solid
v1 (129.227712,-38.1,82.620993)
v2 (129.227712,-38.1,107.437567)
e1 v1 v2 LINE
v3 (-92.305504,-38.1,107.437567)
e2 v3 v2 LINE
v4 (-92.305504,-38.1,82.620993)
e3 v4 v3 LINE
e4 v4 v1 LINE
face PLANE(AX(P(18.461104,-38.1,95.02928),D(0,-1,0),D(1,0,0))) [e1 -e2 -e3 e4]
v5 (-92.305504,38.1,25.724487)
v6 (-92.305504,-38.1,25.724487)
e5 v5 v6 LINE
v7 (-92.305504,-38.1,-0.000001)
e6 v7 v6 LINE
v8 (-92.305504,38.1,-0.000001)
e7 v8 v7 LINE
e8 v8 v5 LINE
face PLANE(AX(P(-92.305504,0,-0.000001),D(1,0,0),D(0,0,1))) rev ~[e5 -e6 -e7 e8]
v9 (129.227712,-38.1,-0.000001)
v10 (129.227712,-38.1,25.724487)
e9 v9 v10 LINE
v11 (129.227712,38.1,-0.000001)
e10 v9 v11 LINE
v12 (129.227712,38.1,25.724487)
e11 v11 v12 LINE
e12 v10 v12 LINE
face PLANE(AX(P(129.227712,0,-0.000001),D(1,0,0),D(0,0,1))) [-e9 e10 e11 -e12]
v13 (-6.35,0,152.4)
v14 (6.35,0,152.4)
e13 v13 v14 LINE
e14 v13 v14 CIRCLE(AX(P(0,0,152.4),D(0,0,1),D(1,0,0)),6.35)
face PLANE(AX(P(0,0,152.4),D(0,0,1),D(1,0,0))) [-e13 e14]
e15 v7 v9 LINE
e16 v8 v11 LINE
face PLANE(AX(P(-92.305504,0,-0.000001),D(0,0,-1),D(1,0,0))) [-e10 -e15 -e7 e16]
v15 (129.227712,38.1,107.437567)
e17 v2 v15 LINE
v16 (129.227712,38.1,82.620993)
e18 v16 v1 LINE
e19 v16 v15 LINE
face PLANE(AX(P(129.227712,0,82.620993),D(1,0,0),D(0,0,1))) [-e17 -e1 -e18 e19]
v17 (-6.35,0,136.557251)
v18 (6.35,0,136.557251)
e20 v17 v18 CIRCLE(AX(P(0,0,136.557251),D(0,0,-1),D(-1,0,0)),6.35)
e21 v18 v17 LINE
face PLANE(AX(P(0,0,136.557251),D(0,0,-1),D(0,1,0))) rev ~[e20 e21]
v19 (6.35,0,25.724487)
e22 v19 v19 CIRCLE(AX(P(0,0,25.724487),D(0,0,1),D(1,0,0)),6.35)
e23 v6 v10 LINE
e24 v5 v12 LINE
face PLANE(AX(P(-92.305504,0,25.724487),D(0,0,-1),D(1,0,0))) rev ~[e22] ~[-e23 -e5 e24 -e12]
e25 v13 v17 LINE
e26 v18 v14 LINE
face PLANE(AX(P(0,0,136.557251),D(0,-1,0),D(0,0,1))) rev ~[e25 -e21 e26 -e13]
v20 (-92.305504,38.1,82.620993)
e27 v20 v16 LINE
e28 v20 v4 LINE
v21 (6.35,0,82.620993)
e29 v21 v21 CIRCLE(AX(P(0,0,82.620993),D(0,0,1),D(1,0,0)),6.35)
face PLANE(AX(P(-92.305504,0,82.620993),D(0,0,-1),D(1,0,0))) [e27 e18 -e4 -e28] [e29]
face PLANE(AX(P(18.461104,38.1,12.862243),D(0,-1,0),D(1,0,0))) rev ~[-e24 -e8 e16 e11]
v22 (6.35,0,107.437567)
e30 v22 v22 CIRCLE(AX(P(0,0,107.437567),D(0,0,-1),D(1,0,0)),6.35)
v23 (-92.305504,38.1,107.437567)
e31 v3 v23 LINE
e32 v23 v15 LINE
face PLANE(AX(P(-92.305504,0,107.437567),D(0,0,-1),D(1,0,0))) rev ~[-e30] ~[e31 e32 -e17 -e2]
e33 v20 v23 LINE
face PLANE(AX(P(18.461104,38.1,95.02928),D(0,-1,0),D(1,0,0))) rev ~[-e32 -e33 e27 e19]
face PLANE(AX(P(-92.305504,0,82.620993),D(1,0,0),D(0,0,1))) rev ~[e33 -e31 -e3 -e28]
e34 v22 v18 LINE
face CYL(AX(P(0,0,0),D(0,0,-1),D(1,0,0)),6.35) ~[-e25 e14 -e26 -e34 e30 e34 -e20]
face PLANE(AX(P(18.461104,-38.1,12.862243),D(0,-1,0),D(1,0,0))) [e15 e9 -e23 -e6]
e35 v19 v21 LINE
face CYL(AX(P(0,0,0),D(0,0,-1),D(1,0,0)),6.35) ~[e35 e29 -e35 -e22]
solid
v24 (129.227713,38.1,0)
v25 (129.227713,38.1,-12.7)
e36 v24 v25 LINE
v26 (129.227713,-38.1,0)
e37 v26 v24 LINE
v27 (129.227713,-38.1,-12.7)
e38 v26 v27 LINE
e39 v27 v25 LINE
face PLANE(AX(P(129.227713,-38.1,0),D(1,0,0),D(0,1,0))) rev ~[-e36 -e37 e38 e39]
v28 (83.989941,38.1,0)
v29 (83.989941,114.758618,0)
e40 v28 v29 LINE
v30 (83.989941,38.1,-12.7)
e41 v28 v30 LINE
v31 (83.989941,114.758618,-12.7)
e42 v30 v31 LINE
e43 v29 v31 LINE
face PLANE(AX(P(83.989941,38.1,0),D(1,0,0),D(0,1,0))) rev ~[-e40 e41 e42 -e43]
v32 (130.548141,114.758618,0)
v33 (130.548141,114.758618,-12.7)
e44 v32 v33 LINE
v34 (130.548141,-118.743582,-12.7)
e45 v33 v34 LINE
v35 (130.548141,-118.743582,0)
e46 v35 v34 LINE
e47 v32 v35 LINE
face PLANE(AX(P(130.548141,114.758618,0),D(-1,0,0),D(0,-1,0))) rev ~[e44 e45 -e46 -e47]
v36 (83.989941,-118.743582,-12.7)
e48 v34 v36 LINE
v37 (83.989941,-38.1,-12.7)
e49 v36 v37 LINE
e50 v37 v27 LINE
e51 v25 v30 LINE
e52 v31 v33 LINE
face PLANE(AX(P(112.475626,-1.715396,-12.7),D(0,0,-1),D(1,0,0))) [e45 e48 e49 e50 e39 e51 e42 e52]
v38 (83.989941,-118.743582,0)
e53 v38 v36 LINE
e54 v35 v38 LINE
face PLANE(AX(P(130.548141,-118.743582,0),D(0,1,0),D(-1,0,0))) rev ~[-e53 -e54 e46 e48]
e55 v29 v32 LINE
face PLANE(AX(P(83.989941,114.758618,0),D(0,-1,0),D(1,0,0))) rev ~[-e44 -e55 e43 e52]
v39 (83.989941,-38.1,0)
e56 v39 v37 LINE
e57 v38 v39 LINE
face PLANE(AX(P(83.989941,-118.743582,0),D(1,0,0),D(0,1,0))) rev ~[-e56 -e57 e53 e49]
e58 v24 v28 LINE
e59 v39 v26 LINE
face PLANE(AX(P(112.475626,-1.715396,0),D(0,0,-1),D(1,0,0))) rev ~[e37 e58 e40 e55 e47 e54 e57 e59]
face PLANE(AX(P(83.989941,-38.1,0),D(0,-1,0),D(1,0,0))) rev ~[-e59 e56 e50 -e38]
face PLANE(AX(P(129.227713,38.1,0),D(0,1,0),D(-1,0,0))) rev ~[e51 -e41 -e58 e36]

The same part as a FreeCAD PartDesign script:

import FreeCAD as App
import Part
import Sketcher
from FreeCAD import Vector
Q = App.Units.Quantity

doc = App.newDocument("Part")
body = doc.addObject("PartDesign::Body", "Body")

sketch1 = body.newObject("Sketcher::SketchObject", "Sketch")
sketch1.AttachmentSupport = (doc.getObject("XY_Plane"), [""])
sketch1.MapMode = "FlatFace"
sketch1.addGeometry(Part.Circle(Vector(0, 0, 0), Vector(0, 0, 1), 6), False)
sketch1.addConstraint(Sketcher.Constraint("Coincident", 0, 3, -1, 1))
sketch1.addConstraint(Sketcher.Constraint("Diameter", 0, Q("0.5 in")))
pad1 = body.newObject("PartDesign::Pad", "Pad")
pad1.Profile = sketch1
pad1.Length = Q("6 in")

sketch2 = body.newObject("Sketcher::SketchObject", "Sketch001")
sketch2.AttachmentSupport = (doc.getObject("YZ_Plane"), [""])
sketch2.MapMode = "FlatFace"
sketch2.addGeometry(Part.LineSegment(Vector(0, 155, 0), Vector(0, 137, 0)), False)
sketch2.addGeometry(Part.LineSegment(Vector(0, 137, 0), Vector(13, 137, 0)), False)
sketch2.addGeometry(Part.LineSegment(Vector(13, 137, 0), Vector(13, 155, 0)), False)
sketch2.addGeometry(Part.LineSegment(Vector(13, 155, 0), Vector(0, 155, 0)), False)
sketch2.addConstraint(Sketcher.Constraint("Coincident", 0, 2, 1, 1))
sketch2.addConstraint(Sketcher.Constraint("Coincident", 1, 2, 2, 1))
sketch2.addConstraint(Sketcher.Constraint("Coincident", 2, 2, 3, 1))
sketch2.addConstraint(Sketcher.Constraint("Coincident", 3, 2, 0, 1))
sketch2.addConstraint(Sketcher.Constraint("Vertical", 0))
sketch2.addConstraint(Sketcher.Constraint("Horizontal", 1))
sketch2.addConstraint(Sketcher.Constraint("Vertical", 2))
sketch2.addConstraint(Sketcher.Constraint("Horizontal", 3))
sketch2.addConstraint(Sketcher.Constraint("PointOnObject", 0, 2, -2))
sketch2.addConstraint(Sketcher.Constraint("DistanceX", 1, 1, 1, 2, Q("0.5 in")))
sketch2.addConstraint(Sketcher.Constraint("DistanceY", 0, 2, 0, 1, 18.046826))
sketch2.addConstraint(Sketcher.Constraint("DistanceY", -1, 1, 0, 2, 136.557251))
pocket1 = body.newObject("PartDesign::Pocket", "Pocket")
pocket1.Profile = sketch2
pocket1.Length = Q("1 in")

sketch3 = body.newObject("Sketcher::SketchObject", "Sketch002")
sketch3.AttachmentSupport = (doc.getObject("YZ_Plane"), [""])
sketch3.MapMode = "FlatFace"
sketch3.addGeometry(Part.LineSegment(Vector(0, 155, 0), Vector(0, 137, 0)), False)
sketch3.addGeometry(Part.LineSegment(Vector(0, 137, 0), Vector(13, 137, 0)), False)
sketch3.addGeometry(Part.LineSegment(Vector(13, 137, 0), Vector(13, 155, 0)), False)
sketch3.addGeometry(Part.LineSegment(Vector(13, 155, 0), Vector(0, 155, 0)), False)
sketch3.addConstraint(Sketcher.Constraint("Coincident", 0, 2, 1, 1))
sketch3.addConstraint(Sketcher.Constraint("Coincident", 1, 2, 2, 1))
sketch3.addConstraint(Sketcher.Constraint("Coincident", 2, 2, 3, 1))
sketch3.addConstraint(Sketcher.Constraint("Coincident", 3, 2, 0, 1))
sketch3.addConstraint(Sketcher.Constraint("Vertical", 0))
sketch3.addConstraint(Sketcher.Constraint("Horizontal", 1))
sketch3.addConstraint(Sketcher.Constraint("Vertical", 2))
sketch3.addConstraint(Sketcher.Constraint("Horizontal", 3))
sketch3.addConstraint(Sketcher.Constraint("PointOnObject", 0, 2, -2))
sketch3.addConstraint(Sketcher.Constraint("DistanceX", 1, 1, 1, 2, Q("0.5 in")))
sketch3.addConstraint(Sketcher.Constraint("DistanceY", 0, 2, 0, 1, 18.046826))
sketch3.addConstraint(Sketcher.Constraint("DistanceY", -1, 1, 0, 2, 136.557251))
pocket2 = body.newObject("PartDesign::Pocket", "Pocket001")
pocket2.Profile = sketch3
pocket2.Length = Q("1 in")
pocket2.Reversed = True

sketch4 = body.newObject("Sketcher::SketchObject", "Sketch003")
sketch4.AttachmentSupport = (doc.getObject("XZ_Plane"), [""])
sketch4.MapMode = "FlatFace"
sketch4.addGeometry(Part.LineSegment(Vector(-92, 107, 0), Vector(-92, 83, 0)), False)
sketch4.addGeometry(Part.LineSegment(Vector(-92, 83, 0), Vector(129, 83, 0)), False)
sketch4.addGeometry(Part.LineSegment(Vector(129, 83, 0), Vector(129, 107, 0)), False)
sketch4.addGeometry(Part.LineSegment(Vector(129, 107, 0), Vector(-92, 107, 0)), False)
sketch4.addGeometry(Part.LineSegment(Vector(-92, 26, 0), Vector(-92, 0, 0)), False)
sketch4.addGeometry(Part.LineSegment(Vector(-92, 0, 0), Vector(129, 0, 0)), False)
sketch4.addGeometry(Part.LineSegment(Vector(129, 0, 0), Vector(129, 26, 0)), False)
sketch4.addGeometry(Part.LineSegment(Vector(129, 26, 0), Vector(-92, 26, 0)), False)
sketch4.addConstraint(Sketcher.Constraint("Coincident", 0, 2, 1, 1))
sketch4.addConstraint(Sketcher.Constraint("Coincident", 1, 2, 2, 1))
sketch4.addConstraint(Sketcher.Constraint("Coincident", 2, 2, 3, 1))
sketch4.addConstraint(Sketcher.Constraint("Coincident", 3, 2, 0, 1))
sketch4.addConstraint(Sketcher.Constraint("Coincident", 4, 2, 5, 1))
sketch4.addConstraint(Sketcher.Constraint("Coincident", 5, 2, 6, 1))
sketch4.addConstraint(Sketcher.Constraint("Coincident", 6, 2, 7, 1))
sketch4.addConstraint(Sketcher.Constraint("Coincident", 7, 2, 4, 1))
sketch4.addConstraint(Sketcher.Constraint("Vertical", 0))
sketch4.addConstraint(Sketcher.Constraint("Horizontal", 1))
sketch4.addConstraint(Sketcher.Constraint("Vertical", 2))
sketch4.addConstraint(Sketcher.Constraint("Horizontal", 3))
sketch4.addConstraint(Sketcher.Constraint("Vertical", 4))
sketch4.addConstraint(Sketcher.Constraint("Horizontal", 5))
sketch4.addConstraint(Sketcher.Constraint("Vertical", 6))
sketch4.addConstraint(Sketcher.Constraint("Horizontal", 7))
sketch4.addConstraint(Sketcher.Constraint("PointOnObject", 4, 2, -1))
sketch4.addConstraint(Sketcher.Constraint("Vertical", 3, 2, 4, 2))
sketch4.addConstraint(Sketcher.Constraint("Vertical", 2, 2, 5, 2))
sketch4.addConstraint(Sketcher.Constraint("DistanceX", 1, 1, 1, 2, 221.533217))
sketch4.addConstraint(Sketcher.Constraint("DistanceY", 0, 2, 0, 1, 24.816573))
sketch4.addConstraint(Sketcher.Constraint("DistanceY", 4, 2, 4, 1, 25.724487))
sketch4.addConstraint(Sketcher.Constraint("DistanceY", 6, 2, 2, 2, 81.71308))
sketch4.addConstraint(Sketcher.Constraint("DistanceX", 0, 2, -1, 1, 92.305504))
pad2 = body.newObject("PartDesign::Pad", "Pad001")
pad2.Profile = sketch4
pad2.Length = Q("1.5 in")

sketch5 = body.newObject("Sketcher::SketchObject", "Sketch004")
sketch5.AttachmentSupport = (doc.getObject("XZ_Plane"), [""])
sketch5.MapMode = "FlatFace"
sketch5.addGeometry(Part.LineSegment(Vector(-92, 107, 0), Vector(-92, 83, 0)), False)
sketch5.addGeometry(Part.LineSegment(Vector(-92, 83, 0), Vector(129, 83, 0)), False)
sketch5.addGeometry(Part.LineSegment(Vector(129, 83, 0), Vector(129, 107, 0)), False)
sketch5.addGeometry(Part.LineSegment(Vector(129, 107, 0), Vector(-92, 107, 0)), False)
sketch5.addGeometry(Part.LineSegment(Vector(-92, 26, 0), Vector(-92, 0, 0)), False)
sketch5.addGeometry(Part.LineSegment(Vector(-92, 0, 0), Vector(129, 0, 0)), False)
sketch5.addGeometry(Part.LineSegment(Vector(129, 0, 0), Vector(129, 26, 0)), False)
sketch5.addGeometry(Part.LineSegment(Vector(129, 26, 0), Vector(-92, 26, 0)), False)
sketch5.addConstraint(Sketcher.Constraint("Coincident", 0, 2, 1, 1))
sketch5.addConstraint(Sketcher.Constraint("Coincident", 1, 2, 2, 1))
sketch5.addConstraint(Sketcher.Constraint("Coincident", 2, 2, 3, 1))
sketch5.addConstraint(Sketcher.Constraint("Coincident", 3, 2, 0, 1))
sketch5.addConstraint(Sketcher.Constraint("Coincident", 4, 2, 5, 1))
sketch5.addConstraint(Sketcher.Constraint("Coincident", 5, 2, 6, 1))
sketch5.addConstraint(Sketcher.Constraint("Coincident", 6, 2, 7, 1))
sketch5.addConstraint(Sketcher.Constraint("Coincident", 7, 2, 4, 1))
sketch5.addConstraint(Sketcher.Constraint("Vertical", 0))
sketch5.addConstraint(Sketcher.Constraint("Horizontal", 1))
sketch5.addConstraint(Sketcher.Constraint("Vertical", 2))
sketch5.addConstraint(Sketcher.Constraint("Horizontal", 3))
sketch5.addConstraint(Sketcher.Constraint("Vertical", 4))
sketch5.addConstraint(Sketcher.Constraint("Horizontal", 5))
sketch5.addConstraint(Sketcher.Constraint("Vertical", 6))
sketch5.addConstraint(Sketcher.Constraint("Horizontal", 7))
sketch5.addConstraint(Sketcher.Constraint("PointOnObject", 4, 2, -1))
sketch5.addConstraint(Sketcher.Constraint("Vertical", 3, 2, 4, 2))
sketch5.addConstraint(Sketcher.Constraint("Vertical", 2, 2, 5, 2))
sketch5.addConstraint(Sketcher.Constraint("DistanceX", 1, 1, 1, 2, 221.533217))
sketch5.addConstraint(Sketcher.Constraint("DistanceY", 0, 2, 0, 1, 24.816573))
sketch5.addConstraint(Sketcher.Constraint("DistanceY", 4, 2, 4, 1, 25.724487))
sketch5.addConstraint(Sketcher.Constraint("DistanceY", 6, 2, 2, 2, 81.71308))
sketch5.addConstraint(Sketcher.Constraint("DistanceX", 0, 2, -1, 1, 92.305504))
pad3 = body.newObject("PartDesign::Pad", "Pad002")
pad3.Profile = sketch5
pad3.Length = Q("1.5 in")
pad3.Reversed = True
body2 = doc.addObject("PartDesign::Body", "Body001")

sketch6 = body2.newObject("Sketcher::SketchObject", "Sketch005")
sketch6.AttachmentSupport = (doc.getObject("XY_Plane001"), [""])
sketch6.MapMode = "FlatFace"
sketch6.addGeometry(Part.LineSegment(Vector(84, 115, 0), Vector(131, 115, 0)), False)
sketch6.addGeometry(Part.LineSegment(Vector(131, 115, 0), Vector(131, -119, 0)), False)
sketch6.addGeometry(Part.LineSegment(Vector(131, -119, 0), Vector(84, -119, 0)), False)
sketch6.addGeometry(Part.LineSegment(Vector(84, -119, 0), Vector(84, -38, 0)), False)
sketch6.addGeometry(Part.LineSegment(Vector(84, -38, 0), Vector(129, -38, 0)), False)
sketch6.addGeometry(Part.LineSegment(Vector(129, -38, 0), Vector(129, 38, 0)), False)
sketch6.addGeometry(Part.LineSegment(Vector(129, 38, 0), Vector(84, 38, 0)), False)
sketch6.addGeometry(Part.LineSegment(Vector(84, 38, 0), Vector(84, 115, 0)), False)
sketch6.addConstraint(Sketcher.Constraint("Coincident", 0, 2, 1, 1))
sketch6.addConstraint(Sketcher.Constraint("Coincident", 1, 2, 2, 1))
sketch6.addConstraint(Sketcher.Constraint("Coincident", 2, 2, 3, 1))
sketch6.addConstraint(Sketcher.Constraint("Coincident", 3, 2, 4, 1))
sketch6.addConstraint(Sketcher.Constraint("Coincident", 4, 2, 5, 1))
sketch6.addConstraint(Sketcher.Constraint("Coincident", 5, 2, 6, 1))
sketch6.addConstraint(Sketcher.Constraint("Coincident", 6, 2, 7, 1))
sketch6.addConstraint(Sketcher.Constraint("Coincident", 7, 2, 0, 1))
sketch6.addConstraint(Sketcher.Constraint("Horizontal", 0))
sketch6.addConstraint(Sketcher.Constraint("Vertical", 1))
sketch6.addConstraint(Sketcher.Constraint("Horizontal", 2))
sketch6.addConstraint(Sketcher.Constraint("Vertical", 3))
sketch6.addConstraint(Sketcher.Constraint("Horizontal", 4))
sketch6.addConstraint(Sketcher.Constraint("Vertical", 5))
sketch6.addConstraint(Sketcher.Constraint("Horizontal", 6))
sketch6.addConstraint(Sketcher.Constraint("Vertical", 7))
sketch6.addConstraint(Sketcher.Constraint("Symmetric", 3, 2, 6, 2, -1))
sketch6.addConstraint(Sketcher.Constraint("DistanceY", 5, 1, 5, 2, Q("3 in")))
sketch6.addConstraint(Sketcher.Constraint("DistanceX", 0, 1, 0, 2, Q("1.833 in")))
sketch6.addConstraint(Sketcher.Constraint("DistanceY", 1, 2, 1, 1, Q("9.193 in")))
sketch6.addConstraint(Sketcher.Constraint("DistanceX", 4, 1, 4, 2, 45.237772))
sketch6.addConstraint(Sketcher.Constraint("DistanceY", 3, 1, 3, 2, 80.643582))
sketch6.addConstraint(Sketcher.Constraint("DistanceX", -1, 1, 0, 2, 130.548141))
pad4 = body2.newObject("PartDesign::Pad", "Pad003")
pad4.Profile = sketch6
pad4.Length = Q("0.5 in")
pad4.Reversed = True

doc.recompute()
